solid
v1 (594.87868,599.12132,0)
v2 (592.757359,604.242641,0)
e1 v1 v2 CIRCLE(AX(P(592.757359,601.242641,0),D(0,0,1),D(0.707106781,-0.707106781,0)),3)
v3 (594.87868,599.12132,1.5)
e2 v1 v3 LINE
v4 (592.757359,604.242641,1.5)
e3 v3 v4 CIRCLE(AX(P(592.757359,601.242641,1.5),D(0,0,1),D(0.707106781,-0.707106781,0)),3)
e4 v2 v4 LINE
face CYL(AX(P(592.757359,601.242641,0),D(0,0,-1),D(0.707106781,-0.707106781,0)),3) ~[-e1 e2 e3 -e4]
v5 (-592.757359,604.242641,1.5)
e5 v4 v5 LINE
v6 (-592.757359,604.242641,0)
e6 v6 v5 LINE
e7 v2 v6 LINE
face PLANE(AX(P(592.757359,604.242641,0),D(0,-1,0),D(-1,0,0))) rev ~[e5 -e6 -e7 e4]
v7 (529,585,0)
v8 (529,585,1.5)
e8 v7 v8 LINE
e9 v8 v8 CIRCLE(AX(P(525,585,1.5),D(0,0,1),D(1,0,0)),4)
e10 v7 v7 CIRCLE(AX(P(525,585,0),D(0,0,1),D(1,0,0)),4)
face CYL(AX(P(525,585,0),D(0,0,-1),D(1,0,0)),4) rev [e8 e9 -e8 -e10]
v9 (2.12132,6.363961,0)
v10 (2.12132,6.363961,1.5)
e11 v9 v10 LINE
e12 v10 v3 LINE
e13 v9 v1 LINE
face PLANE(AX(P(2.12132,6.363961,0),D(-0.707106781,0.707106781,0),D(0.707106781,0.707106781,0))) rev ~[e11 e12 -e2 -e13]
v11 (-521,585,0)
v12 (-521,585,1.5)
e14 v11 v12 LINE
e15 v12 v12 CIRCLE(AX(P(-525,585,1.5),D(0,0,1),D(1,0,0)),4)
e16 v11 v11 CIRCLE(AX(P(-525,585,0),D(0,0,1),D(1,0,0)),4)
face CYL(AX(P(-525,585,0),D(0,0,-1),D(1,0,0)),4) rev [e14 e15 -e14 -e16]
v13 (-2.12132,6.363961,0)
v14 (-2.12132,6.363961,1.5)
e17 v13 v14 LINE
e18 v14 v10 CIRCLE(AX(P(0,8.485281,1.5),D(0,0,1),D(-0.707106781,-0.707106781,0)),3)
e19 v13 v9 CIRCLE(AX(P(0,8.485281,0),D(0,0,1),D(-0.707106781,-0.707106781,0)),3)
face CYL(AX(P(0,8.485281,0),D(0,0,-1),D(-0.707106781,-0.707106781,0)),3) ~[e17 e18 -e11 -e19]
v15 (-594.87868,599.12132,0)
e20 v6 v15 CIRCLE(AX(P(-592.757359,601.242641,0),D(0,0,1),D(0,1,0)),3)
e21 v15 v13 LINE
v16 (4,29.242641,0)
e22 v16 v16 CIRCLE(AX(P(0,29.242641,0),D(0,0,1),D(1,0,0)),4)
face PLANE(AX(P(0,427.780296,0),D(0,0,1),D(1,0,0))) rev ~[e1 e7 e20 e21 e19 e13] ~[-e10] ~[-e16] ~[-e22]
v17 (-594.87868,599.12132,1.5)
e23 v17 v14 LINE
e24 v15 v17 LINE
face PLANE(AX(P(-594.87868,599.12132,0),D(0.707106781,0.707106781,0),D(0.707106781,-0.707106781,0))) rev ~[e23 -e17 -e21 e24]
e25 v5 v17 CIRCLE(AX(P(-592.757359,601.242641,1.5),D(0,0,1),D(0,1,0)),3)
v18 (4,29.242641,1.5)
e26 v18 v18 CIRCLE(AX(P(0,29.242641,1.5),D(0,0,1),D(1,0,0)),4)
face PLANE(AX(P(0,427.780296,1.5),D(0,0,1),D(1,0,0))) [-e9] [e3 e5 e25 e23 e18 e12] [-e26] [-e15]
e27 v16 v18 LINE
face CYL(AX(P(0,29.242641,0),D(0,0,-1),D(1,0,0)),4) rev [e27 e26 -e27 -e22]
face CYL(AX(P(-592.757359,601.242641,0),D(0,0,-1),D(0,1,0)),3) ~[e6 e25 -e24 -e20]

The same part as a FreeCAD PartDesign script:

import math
import FreeCAD as App
import Part
import Sketcher

doc = App.newDocument("Part")
body = doc.addObject("PartDesign::Body", "Body")

sketch1 = doc.addObject("Sketcher::SketchObject", "Sketch")
body.addObject(sketch1)
sketch1.AttachmentSupport = (doc.XY_Plane, [""])
sketch1.MapMode = "FlatFace"
sketch1.addGeometry([
    Part.LineSegment(App.Vector(2.1, 6.4, 0), App.Vector(594.9, 599.1, 0)),
    Part.ArcOfCircle(Part.Circle(App.Vector(592.8, 601.2, 0), App.Vector(0, 0, 1), 3), math.radians(-45), math.radians(90)),
    Part.LineSegment(App.Vector(592.8, 604.2, 0), App.Vector(-592.8, 604.2, 0)),
    Part.ArcOfCircle(Part.Circle(App.Vector(-592.8, 601.2, 0), App.Vector(0, 0, 1), 3), math.radians(90), math.radians(225)),
    Part.LineSegment(App.Vector(-594.9, 599.1, 0), App.Vector(-2.1, 6.4, 0)),
    Part.ArcOfCircle(Part.Circle(App.Vector(0, 8.5, 0), App.Vector(0, 0, 1), 3), math.radians(-135), math.radians(-45)),
    Part.Circle(App.Vector(0, 29.2, 0), App.Vector(0, 0, 1), 4),
    Part.Circle(App.Vector(-525, 585, 0), App.Vector(0, 0, 1), 4),
    Part.Circle(App.Vector(525, 585, 0), App.Vector(0, 0, 1), 4),
], False)
sketch1.addConstraint([
    Sketcher.Constraint("Tangent", 0, 2, 1, 1),
    Sketcher.Constraint("Tangent", 1, 2, 2, 1),
    Sketcher.Constraint("Tangent", 2, 2, 3, 1),
    Sketcher.Constraint("Tangent", 3, 2, 4, 1),
    Sketcher.Constraint("Tangent", 4, 2, 5, 1),
    Sketcher.Constraint("Tangent", 5, 2, 0, 1),
    Sketcher.Constraint("Horizontal", 2),
    Sketcher.Constraint("Equal", 1, 3),
    Sketcher.Constraint("Equal", 3, 5),
    Sketcher.Constraint("Equal", 6, 7),
    Sketcher.Constraint("Equal", 7, 8),
    Sketcher.Constraint("Symmetric", 7, 3, 8, 3, -2),
    Sketcher.Constraint("PointOnObject", 5, 3, -2),
    Sketcher.Constraint("PointOnObject", 6, 3, -2),
    Sketcher.Constraint("Perpendicular", 0, 4),
    Sketcher.Constraint("Equal", 0, 4),
    Sketcher.Constraint("Diameter", 6, 8.0),
    Sketcher.Constraint("Radius", 1, 3.0),
    Sketcher.Constraint("DistanceX", 7, 3, -1, 1, 525.0),
    Sketcher.Constraint("DistanceY", -1, 1, 7, 3, 585.0),
    Sketcher.Constraint("DistanceY", 6, 3, 1, 3, 572.0),
    Sketcher.Constraint("DistanceX", 2, 2, 2, 1, 1185.514719),
    Sketcher.Constraint("DistanceY", -1, 1, 1, 3, 601.242641),
])
pad1 = doc.addObject("PartDesign::Pad", "Pad")
body.addObject(pad1)
pad1.Profile = sketch1
pad1.Length = 1.5

doc.recompute()
